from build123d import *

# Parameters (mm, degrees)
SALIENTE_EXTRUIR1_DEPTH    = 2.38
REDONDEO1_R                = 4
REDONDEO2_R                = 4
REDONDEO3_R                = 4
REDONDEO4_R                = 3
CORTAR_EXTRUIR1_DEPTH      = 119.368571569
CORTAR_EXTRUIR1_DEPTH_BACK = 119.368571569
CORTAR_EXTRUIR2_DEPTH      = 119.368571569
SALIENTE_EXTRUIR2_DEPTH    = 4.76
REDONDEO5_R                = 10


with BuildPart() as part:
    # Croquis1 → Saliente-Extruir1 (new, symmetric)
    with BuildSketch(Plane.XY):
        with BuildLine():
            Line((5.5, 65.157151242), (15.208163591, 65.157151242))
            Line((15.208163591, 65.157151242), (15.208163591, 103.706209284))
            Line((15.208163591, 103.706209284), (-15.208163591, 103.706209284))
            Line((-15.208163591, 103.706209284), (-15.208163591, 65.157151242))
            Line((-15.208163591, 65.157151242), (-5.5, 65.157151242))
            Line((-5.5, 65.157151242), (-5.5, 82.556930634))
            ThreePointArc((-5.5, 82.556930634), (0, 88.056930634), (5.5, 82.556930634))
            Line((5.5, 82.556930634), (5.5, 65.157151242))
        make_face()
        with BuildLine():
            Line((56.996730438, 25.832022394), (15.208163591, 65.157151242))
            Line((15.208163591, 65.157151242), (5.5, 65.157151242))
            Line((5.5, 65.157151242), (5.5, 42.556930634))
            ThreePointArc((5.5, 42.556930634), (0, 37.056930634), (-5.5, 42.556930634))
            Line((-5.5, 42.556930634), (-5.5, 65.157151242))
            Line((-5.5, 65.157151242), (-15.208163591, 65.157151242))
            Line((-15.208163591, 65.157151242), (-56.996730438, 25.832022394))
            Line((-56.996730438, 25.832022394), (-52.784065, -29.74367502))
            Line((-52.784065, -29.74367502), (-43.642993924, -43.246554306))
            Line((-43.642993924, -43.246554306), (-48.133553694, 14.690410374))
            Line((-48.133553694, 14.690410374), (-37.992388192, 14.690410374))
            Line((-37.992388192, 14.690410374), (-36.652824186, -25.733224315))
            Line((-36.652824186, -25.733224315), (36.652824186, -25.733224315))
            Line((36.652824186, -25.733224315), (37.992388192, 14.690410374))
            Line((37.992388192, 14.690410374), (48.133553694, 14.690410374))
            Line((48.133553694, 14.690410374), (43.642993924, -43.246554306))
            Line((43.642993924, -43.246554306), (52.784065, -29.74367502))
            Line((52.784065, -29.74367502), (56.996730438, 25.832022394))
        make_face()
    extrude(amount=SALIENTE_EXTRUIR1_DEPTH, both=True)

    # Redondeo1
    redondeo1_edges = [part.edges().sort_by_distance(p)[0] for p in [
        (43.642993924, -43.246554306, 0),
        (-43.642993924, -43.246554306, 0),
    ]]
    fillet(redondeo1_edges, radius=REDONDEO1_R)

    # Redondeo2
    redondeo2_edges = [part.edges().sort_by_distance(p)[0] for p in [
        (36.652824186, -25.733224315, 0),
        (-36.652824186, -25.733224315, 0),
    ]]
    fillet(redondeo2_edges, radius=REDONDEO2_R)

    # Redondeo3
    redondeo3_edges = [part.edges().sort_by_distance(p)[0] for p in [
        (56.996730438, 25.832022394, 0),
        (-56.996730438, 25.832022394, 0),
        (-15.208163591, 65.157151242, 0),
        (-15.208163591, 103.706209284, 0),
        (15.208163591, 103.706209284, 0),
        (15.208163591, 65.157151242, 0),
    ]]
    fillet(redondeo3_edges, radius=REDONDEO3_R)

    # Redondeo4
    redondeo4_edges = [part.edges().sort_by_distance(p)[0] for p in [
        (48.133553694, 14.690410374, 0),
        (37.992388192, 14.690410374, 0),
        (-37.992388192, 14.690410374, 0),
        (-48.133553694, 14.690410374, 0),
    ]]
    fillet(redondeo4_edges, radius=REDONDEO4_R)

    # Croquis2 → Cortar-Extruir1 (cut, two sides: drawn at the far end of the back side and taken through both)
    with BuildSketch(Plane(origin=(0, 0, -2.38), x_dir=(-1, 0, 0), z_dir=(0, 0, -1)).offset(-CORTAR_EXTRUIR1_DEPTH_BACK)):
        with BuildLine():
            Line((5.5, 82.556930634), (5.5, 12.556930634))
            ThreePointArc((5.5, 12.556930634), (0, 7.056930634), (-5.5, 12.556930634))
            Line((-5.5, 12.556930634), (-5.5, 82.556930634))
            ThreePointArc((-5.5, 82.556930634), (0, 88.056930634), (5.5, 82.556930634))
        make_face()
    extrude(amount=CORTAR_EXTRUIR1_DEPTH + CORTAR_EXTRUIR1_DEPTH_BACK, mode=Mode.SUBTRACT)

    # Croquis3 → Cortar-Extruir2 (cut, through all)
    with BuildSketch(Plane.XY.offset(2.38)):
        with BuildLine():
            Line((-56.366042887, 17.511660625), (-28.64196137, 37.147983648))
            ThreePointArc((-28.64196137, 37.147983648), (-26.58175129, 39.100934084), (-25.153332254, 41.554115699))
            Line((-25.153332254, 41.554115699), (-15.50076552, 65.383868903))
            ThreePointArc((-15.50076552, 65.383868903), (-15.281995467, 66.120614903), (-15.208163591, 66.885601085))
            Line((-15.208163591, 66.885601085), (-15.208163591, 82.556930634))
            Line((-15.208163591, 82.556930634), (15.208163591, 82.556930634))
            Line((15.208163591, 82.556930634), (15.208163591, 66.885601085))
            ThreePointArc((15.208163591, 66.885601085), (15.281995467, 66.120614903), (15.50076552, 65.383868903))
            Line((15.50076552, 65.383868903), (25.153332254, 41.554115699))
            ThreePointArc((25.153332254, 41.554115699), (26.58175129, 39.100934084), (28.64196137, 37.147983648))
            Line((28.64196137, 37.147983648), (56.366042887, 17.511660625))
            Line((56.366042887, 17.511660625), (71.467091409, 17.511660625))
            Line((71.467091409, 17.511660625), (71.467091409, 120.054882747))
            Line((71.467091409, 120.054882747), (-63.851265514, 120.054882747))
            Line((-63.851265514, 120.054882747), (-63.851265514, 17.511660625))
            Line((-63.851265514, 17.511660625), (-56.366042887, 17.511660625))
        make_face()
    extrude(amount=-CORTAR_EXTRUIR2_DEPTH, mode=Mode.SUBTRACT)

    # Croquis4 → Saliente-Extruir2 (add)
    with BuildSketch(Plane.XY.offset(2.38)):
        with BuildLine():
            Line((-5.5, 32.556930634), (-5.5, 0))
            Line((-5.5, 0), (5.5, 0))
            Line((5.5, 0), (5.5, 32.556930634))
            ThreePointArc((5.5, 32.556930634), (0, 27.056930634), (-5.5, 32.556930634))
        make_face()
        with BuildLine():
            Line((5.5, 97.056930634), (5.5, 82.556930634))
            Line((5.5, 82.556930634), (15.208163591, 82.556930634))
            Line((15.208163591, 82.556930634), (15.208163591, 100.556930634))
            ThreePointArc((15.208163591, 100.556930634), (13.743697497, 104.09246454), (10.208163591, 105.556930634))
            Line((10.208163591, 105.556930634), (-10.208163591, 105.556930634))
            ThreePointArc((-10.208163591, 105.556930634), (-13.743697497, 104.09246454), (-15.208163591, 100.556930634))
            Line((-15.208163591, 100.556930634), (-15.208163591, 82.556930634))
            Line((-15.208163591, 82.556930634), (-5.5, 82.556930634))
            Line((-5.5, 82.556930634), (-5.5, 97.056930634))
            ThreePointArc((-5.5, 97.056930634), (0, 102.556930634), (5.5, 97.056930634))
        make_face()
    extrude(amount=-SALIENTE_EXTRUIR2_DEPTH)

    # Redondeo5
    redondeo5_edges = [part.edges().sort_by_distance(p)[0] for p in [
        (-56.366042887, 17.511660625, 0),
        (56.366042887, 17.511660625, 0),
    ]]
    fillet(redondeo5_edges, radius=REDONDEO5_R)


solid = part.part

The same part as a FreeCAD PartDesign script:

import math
import FreeCAD as App
import Part
import Sketcher
from FreeCAD import Vector
Q = App.Units.Quantity


def edges_at(feature, points):
    """Names of the edges that pass closest to the given points."""
    edges = feature.Shape.Edges
    near = lambda p: min(range(len(edges)), key=lambda i: edges[i].distToShape(Part.Vertex(*p))[0])
    return sorted({f"Edge{near(p) + 1}" for p in points})

doc = App.newDocument("Part")
body = doc.addObject("PartDesign::Body", "Body")

# Sketch on XY plane
sketch1 = body.newObject("Sketcher::SketchObject", "Sketch")
sketch1.AttachmentSupport = (doc.getObject("XY_Plane"), [""])
sketch1.MapMode = "FlatFace"
sketch1.addGeometry([
    Part.LineSegment(Vector(15.208164, 65.157151, 0), Vector(15.208164, 103.706209, 0)),  # 0
    Part.LineSegment(Vector(15.208164, 103.706209, 0), Vector(-15.208164, 103.706209, 0)),  # 1
    Part.LineSegment(Vector(-15.208164, 103.706209, 0), Vector(-15.208164, 65.157151, 0)),  # 2
    Part.LineSegment(Vector(-15.208164, 65.157151, 0), Vector(-56.99673, 25.832022, 0)),  # 3
    Part.LineSegment(Vector(-56.99673, 25.832022, 0), Vector(-52.784065, -29.743675, 0)),  # 4
    Part.LineSegment(Vector(-52.784065, -29.743675, 0), Vector(-43.642994, -43.246554, 0)),  # 5
    Part.LineSegment(Vector(-43.642994, -43.246554, 0), Vector(-48.133554, 14.69041, 0)),  # 6
    Part.LineSegment(Vector(-48.133554, 14.69041, 0), Vector(-37.992388, 14.69041, 0)),  # 7
    Part.LineSegment(Vector(-37.992388, 14.69041, 0), Vector(-36.652824, -25.733224, 0)),  # 8
    Part.LineSegment(Vector(-36.652824, -25.733224, 0), Vector(36.652824, -25.733224, 0)),  # 9
    Part.LineSegment(Vector(36.652824, -25.733224, 0), Vector(37.992388, 14.69041, 0)),  # 10
    Part.LineSegment(Vector(37.992388, 14.69041, 0), Vector(48.133554, 14.69041, 0)),  # 11
    Part.LineSegment(Vector(48.133554, 14.69041, 0), Vector(43.642994, -43.246554, 0)),  # 12
    Part.LineSegment(Vector(43.642994, -43.246554, 0), Vector(52.784065, -29.743675, 0)),  # 13
    Part.LineSegment(Vector(52.784065, -29.743675, 0), Vector(56.99673, 25.832022, 0)),  # 14
    Part.LineSegment(Vector(56.99673, 25.832022, 0), Vector(15.208164, 65.157151, 0)),  # 15
    Part.ArcOfCircle(Part.Circle(Vector(0, 82.556931, 0), Vector(0, 0, 1), 5.5), math.radians(0), math.radians(180)),  # 16
    Part.LineSegment(Vector(5.5, 82.556931, 0), Vector(5.5, 42.556931, 0)),  # 17
    Part.ArcOfCircle(Part.Circle(Vector(0, 42.556931, 0), Vector(0, 0, 1), 5.5), math.radians(180), math.radians(360)),  # 18
    Part.LineSegment(Vector(-5.5, 42.556931, 0), Vector(-5.5, 82.556931, 0)),  # 19
], False)
sketch1.addConstraint([
    Sketcher.Constraint("Coincident", 0, 2, 1, 1),
    Sketcher.Constraint("Coincident", 1, 2, 2, 1),
    Sketcher.Constraint("Coincident", 2, 2, 3, 1),
    Sketcher.Constraint("Coincident", 3, 2, 4, 1),
    Sketcher.Constraint("Coincident", 4, 2, 5, 1),
    Sketcher.Constraint("Coincident", 5, 2, 6, 1),
    Sketcher.Constraint("Coincident", 6, 2, 7, 1),
    Sketcher.Constraint("Coincident", 7, 2, 8, 1),
    Sketcher.Constraint("Coincident", 8, 2, 9, 1),
    Sketcher.Constraint("Coincident", 9, 2, 10, 1),
    Sketcher.Constraint("Coincident", 10, 2, 11, 1),
    Sketcher.Constraint("Coincident", 11, 2, 12, 1),
    Sketcher.Constraint("Coincident", 12, 2, 13, 1),
    Sketcher.Constraint("Coincident", 13, 2, 14, 1),
    Sketcher.Constraint("Coincident", 14, 2, 15, 1),
    Sketcher.Constraint("Coincident", 15, 2, 0, 1),
    Sketcher.Constraint("Tangent", 16, 1, 17, 1),
    Sketcher.Constraint("Tangent", 17, 2, 18, 2),
    Sketcher.Constraint("Tangent", 18, 1, 19, 1),
    Sketcher.Constraint("Tangent", 19, 2, 16, 2),
    Sketcher.Constraint("Vertical", 0),
    Sketcher.Constraint("Horizontal", 1),
    Sketcher.Constraint("Vertical", 2),
    Sketcher.Constraint("Horizontal", 7),
    Sketcher.Constraint("Horizontal", 9),
    Sketcher.Constraint("Horizontal", 11),
    Sketcher.Constraint("Vertical", 17),
    Sketcher.Constraint("Vertical", 19),
    Sketcher.Constraint("Symmetric", 7, 2, 10, 2, -2),
    Sketcher.Constraint("Symmetric", 5, 2, 12, 2, -2),
    Sketcher.Constraint("Symmetric", 4, 2, 13, 2, -2),
    Sketcher.Constraint("Symmetric", 3, 2, 14, 2, -2),
    Sketcher.Constraint("Symmetric", 2, 2, 15, 2, -2),
    Sketcher.Constraint("PointOnObject", 16, 3, -2),
    Sketcher.Constraint("Equal", 7, 11),
    Sketcher.Constraint("Equal", 8, 10),
    Sketcher.Constraint("Radius", 16, Q("5.5 mm")),
    Sketcher.Constraint("DistanceY", 17, 2, 17, 1, Q("40 mm")),
    Sketcher.Constraint("DistanceX", 9, 1, 9, 2, Q("73.305648 mm")),
    Sketcher.Constraint("DistanceY", 0, 1, 0, 2, Q("38.549058 mm")),
    Sketcher.Constraint("DistanceX", 4, 2, 2, 2, Q("37.575901 mm")),
    Sketcher.Constraint("Distance", 3, Q("57.382489 mm")),
    Sketcher.Constraint("Distance", 4, Q("55.73513 mm")),
    Sketcher.Constraint("Distance", 5, Q("16.30604 mm")),
    Sketcher.Constraint("Distance", 6, Q("58.110731 mm")),
    Sketcher.Constraint("DistanceX", 1, 2, 1, 1, Q("30.416327 mm")),
    Sketcher.Constraint("DistanceX", 7, 1, 7, 2, Q("10.141166 mm")),
    Sketcher.Constraint("DistanceY", -1, 1, 16, 3, Q("82.556931 mm")),
    Sketcher.Constraint("DistanceY", -1, 1, 0, 2, Q("103.706209 mm")),
    Sketcher.Constraint("DistanceX", 3, 2, -1, 1, Q("56.99673 mm")),
    Sketcher.Constraint("DistanceY", -1, 1, 6, 2, Q("14.69041 mm")),
    Sketcher.Constraint("DistanceX", 7, 2, -1, 1, Q("37.992388 mm")),
    Sketcher.Constraint("DistanceY", 4, 2, 8, 2, Q("4.010451 mm")),
])
pad1 = body.newObject("PartDesign::Pad", "Pad")
pad1.Profile = sketch1
pad1.Length = 4.76
pad1.Midplane = True
doc.recompute()

fillet = body.newObject("PartDesign::Fillet", "Fillet")
fillet.Base = (pad1, edges_at(pad1, [(43.643, -43.247, 0), (-43.643, -43.247, 0)]))
fillet.Radius = 4
doc.recompute()

fillet2 = body.newObject("PartDesign::Fillet", "Fillet001")
fillet2.Base = (fillet, edges_at(fillet, [(36.653, -25.733, 0), (-36.653, -25.733, 0)]))
fillet2.Radius = 4
doc.recompute()

fillet3 = body.newObject("PartDesign::Fillet", "Fillet002")
fillet3.Base = (fillet2, edges_at(fillet2, [
    (56.997, 25.832, 0),
    (-56.997, 25.832, 0),
    (-15.208, 65.157, 0),
    (-15.208, 103.706, 0),
    (15.208, 103.706, 0),
    (15.208, 65.157, 0),
]))
fillet3.Radius = 4
doc.recompute()

fillet4 = body.newObject("PartDesign::Fillet", "Fillet003")
fillet4.Base = (fillet3, edges_at(fillet3, [
    (48.134, 14.69, 0),
    (37.992, 14.69, 0),
    (-37.992, 14.69, 0),
    (-48.134, 14.69, 0),
]))
fillet4.Radius = 3

# Sketch on XY plane
sketch2 = body.newObject("Sketcher::SketchObject", "Sketch001")
sketch2.AttachmentSupport = (doc.getObject("XY_Plane"), [""])
sketch2.MapMode = "FlatFace"
sketch2.AttachmentOffset = App.Placement(Vector(0, 0, -2.38), App.Rotation())
sketch2.addGeometry([
    Part.LineSegment(Vector(-5.5, 12.556931, 0), Vector(-5.5, 82.556931, 0)),
    Part.ArcOfCircle(Part.Circle(Vector(0, 82.556931, 0), Vector(0, 0, 1), 5.5), math.radians(0), math.radians(180)),
    Part.LineSegment(Vector(5.5, 82.556931, 0), Vector(5.5, 12.556931, 0)),
    Part.ArcOfCircle(Part.Circle(Vector(0, 12.556931, 0), Vector(0, 0, 1), 5.5), math.radians(180), math.radians(360)),
], False)
sketch2.addConstraint([
    Sketcher.Constraint("Tangent", 0, 2, 1, 2),
    Sketcher.Constraint("Tangent", 1, 1, 2, 1),
    Sketcher.Constraint("Tangent", 2, 2, 3, 2),
    Sketcher.Constraint("Tangent", 3, 1, 0, 1),
    Sketcher.Constraint("Vertical", 0),
    Sketcher.Constraint("Vertical", 2),
    Sketcher.Constraint("PointOnObject", 1, 3, -2),
    Sketcher.Constraint("Radius", 1, Q("5.5 mm")),
    Sketcher.Constraint("DistanceY", 0, 1, 0, 2, Q("70 mm")),
    Sketcher.Constraint("DistanceY", -1, 1, 1, 3, Q("82.556931 mm")),
])
pocket1 = body.newObject("PartDesign::Pocket", "Pocket")
pocket1.Profile = sketch2
pocket1.Type = "ThroughAll"
pocket1.Midplane = True

# Sketch on XY plane
sketch3 = body.newObject("Sketcher::SketchObject", "Sketch002")
sketch3.AttachmentSupport = (doc.getObject("XY_Plane"), [""])
sketch3.MapMode = "FlatFace"
sketch3.AttachmentOffset = App.Placement(Vector(0, 0, 2.38), App.Rotation())
sketch3.addGeometry([
    Part.LineSegment(Vector(-56.366043, 17.511661, 0), Vector(-28.641961, 37.147984, 0)),  # 0
    Part.ArcOfCircle(Part.Circle(Vector(-34.421827, 45.308446, 0), Vector(0, 0, 1), 10), math.radians(-54.690945), math.radians(-22.05108)),  # 1
    Part.LineSegment(Vector(-25.153332, 41.554116, 0), Vector(-15.500766, 65.383869, 0)),  # 2
    Part.ArcOfCircle(Part.Circle(Vector(-19.208164, 66.885601, 0), Vector(0, 0, 1), 4), math.radians(-22.05108), math.radians(0)),  # 3
    Part.LineSegment(Vector(-15.208164, 66.885601, 0), Vector(-15.208164, 82.556931, 0)),  # 4
    Part.LineSegment(Vector(-15.208164, 82.556931, 0), Vector(15.208164, 82.556931, 0)),  # 5
    Part.LineSegment(Vector(15.208164, 82.556931, 0), Vector(15.208164, 66.885601, 0)),  # 6
    Part.ArcOfCircle(Part.Circle(Vector(19.208164, 66.885601, 0), Vector(0, 0, 1), 4), math.radians(-180), math.radians(-157.94892)),  # 7
    Part.LineSegment(Vector(15.500766, 65.383869, 0), Vector(25.153332, 41.554116, 0)),  # 8
    Part.ArcOfCircle(Part.Circle(Vector(34.421827, 45.308446, 0), Vector(0, 0, 1), 10), math.radians(-157.94892), math.radians(-125.309055)),  # 9
    Part.LineSegment(Vector(28.641961, 37.147984, 0), Vector(56.366043, 17.511661, 0)),  # 10
    Part.LineSegment(Vector(56.366043, 17.511661, 0), Vector(71.467091, 17.511661, 0)),  # 11
    Part.LineSegment(Vector(71.467091, 17.511661, 0), Vector(71.467091, 120.054883, 0)),  # 12
    Part.LineSegment(Vector(71.467091, 120.054883, 0), Vector(-63.851266, 120.054883, 0)),  # 13
    Part.LineSegment(Vector(-63.851266, 120.054883, 0), Vector(-63.851266, 17.511661, 0)),  # 14
    Part.LineSegment(Vector(-63.851266, 17.511661, 0), Vector(-56.366043, 17.511661, 0)),  # 15
], False)
sketch3.addConstraint([
    Sketcher.Constraint("Tangent", 0, 2, 1, 1),
    Sketcher.Constraint("Tangent", 1, 2, 2, 1),
    Sketcher.Constraint("Tangent", 2, 2, 3, 1),
    Sketcher.Constraint("Tangent", 3, 2, 4, 1),
    Sketcher.Constraint("Coincident", 4, 2, 5, 1),
    Sketcher.Constraint("Coincident", 5, 2, 6, 1),
    Sketcher.Constraint("Tangent", 6, 2, 7, 1),
    Sketcher.Constraint("Tangent", 7, 2, 8, 1),
    Sketcher.Constraint("Tangent", 8, 2, 9, 1),
    Sketcher.Constraint("Tangent", 9, 2, 10, 1),
    Sketcher.Constraint("Coincident", 10, 2, 11, 1),
    Sketcher.Constraint("Coincident", 11, 2, 12, 1),
    Sketcher.Constraint("Coincident", 12, 2, 13, 1),
    Sketcher.Constraint("Coincident", 13, 2, 14, 1),
    Sketcher.Constraint("Coincident", 14, 2, 15, 1),
    Sketcher.Constraint("Coincident", 15, 2, 0, 1),
    Sketcher.Constraint("Vertical", 4),
    Sketcher.Constraint("Horizontal", 5),
    Sketcher.Constraint("Vertical", 6),
    Sketcher.Constraint("Horizontal", 11),
    Sketcher.Constraint("Vertical", 12),
    Sketcher.Constraint("Horizontal", 13),
    Sketcher.Constraint("Vertical", 14),
    Sketcher.Constraint("Horizontal", 15),
    Sketcher.Constraint("Equal", 3, 7),
    Sketcher.Constraint("Equal", 1, 9),
    Sketcher.Constraint("Symmetric", 3, 3, 7, 3, -2),
    Sketcher.Constraint("Symmetric", 1, 3, 9, 3, -2),
    Sketcher.Constraint("Symmetric", 10, 2, 15, 2, -2),
    Sketcher.Constraint("Radius", 1, Q("10 mm")),
    Sketcher.Constraint("Radius", 3, Q("4 mm")),
    Sketcher.Constraint("DistanceX", 11, 1, 11, 2, Q("15.101049 mm")),
    Sketcher.Constraint("DistanceY", 4, 1, 4, 2, Q("15.67133 mm")),
    Sketcher.Constraint("DistanceY", -1, 1, 3, 3, Q("66.885601 mm")),
    Sketcher.Constraint("DistanceX", 3, 3, 2, 2, Q("3.707398 mm")),
    Sketcher.Constraint("DistanceX", 13, 2, 4, 2, Q("48.643102 mm")),
    Sketcher.Constraint("DistanceX", 5, 1, 5, 2, Q("30.416327 mm")),
    Sketcher.Constraint("DistanceX", 13, 2, 13, 1, Q("135.318357 mm")),
    Sketcher.Constraint("DistanceY", 12, 1, 12, 2, Q("102.543222 mm")),
    Sketcher.Constraint("DistanceX", 0, 2, -1, 1, Q("28.641961 mm")),
    Sketcher.Constraint("DistanceY", -1, 1, 10, 2, Q("17.511661 mm")),
])
pocket2 = body.newObject("PartDesign::Pocket", "Pocket001")
pocket2.Profile = sketch3
pocket2.Type = "ThroughAll"

# Sketch on XY plane
sketch4 = body.newObject("Sketcher::SketchObject", "Sketch003")
sketch4.AttachmentSupport = (doc.getObject("XY_Plane"), [""])
sketch4.MapMode = "FlatFace"
sketch4.AttachmentOffset = App.Placement(Vector(0, 0, 2.38), App.Rotation())
sketch4.addGeometry([
    Part.LineSegment(Vector(-5.5, 32.556931, 0), Vector(-5.5, 0, 0)),  # 0
    Part.LineSegment(Vector(-5.5, 0, 0), Vector(5.5, 0, 0)),  # 1
    Part.LineSegment(Vector(5.5, 0, 0), Vector(5.5, 32.556931, 0)),  # 2
    Part.ArcOfCircle(Part.Circle(Vector(0, 32.556931, 0), Vector(0, 0, 1), 5.5), math.radians(180), math.radians(360)),  # 3
    Part.LineSegment(Vector(5.5, 97.056931, 0), Vector(5.5, 82.556931, 0)),  # 4
    Part.LineSegment(Vector(5.5, 82.556931, 0), Vector(15.208164, 82.556931, 0)),  # 5
    Part.LineSegment(Vector(15.208164, 82.556931, 0), Vector(15.208164, 100.556931, 0)),  # 6
    Part.ArcOfCircle(Part.Circle(Vector(10.208164, 100.556931, 0), Vector(0, 0, 1), 5), math.radians(0), math.radians(90)),  # 7
    Part.LineSegment(Vector(10.208164, 105.556931, 0), Vector(-10.208164, 105.556931, 0)),  # 8
    Part.ArcOfCircle(Part.Circle(Vector(-10.208164, 100.556931, 0), Vector(0, 0, 1), 5), math.radians(90), math.radians(180)),  # 9
    Part.LineSegment(Vector(-15.208164, 100.556931, 0), Vector(-15.208164, 82.556931, 0)),  # 10
    Part.LineSegment(Vector(-15.208164, 82.556931, 0), Vector(-5.5, 82.556931, 0)),  # 11
    Part.LineSegment(Vector(-5.5, 82.556931, 0), Vector(-5.5, 97.056931, 0)),  # 12
    Part.ArcOfCircle(Part.Circle(Vector(0, 97.056931, 0), Vector(0, 0, 1), 5.5), math.radians(0), math.radians(180)),  # 13
], False)
sketch4.addConstraint([
    Sketcher.Constraint("Coincident", 0, 2, 1, 1),
    Sketcher.Constraint("Coincident", 1, 2, 2, 1),
    Sketcher.Constraint("Tangent", 2, 2, 3, 2),
    Sketcher.Constraint("Tangent", 3, 1, 0, 1),
    Sketcher.Constraint("Coincident", 4, 2, 5, 1),
    Sketcher.Constraint("Coincident", 5, 2, 6, 1),
    Sketcher.Constraint("Tangent", 6, 2, 7, 1),
    Sketcher.Constraint("Tangent", 7, 2, 8, 1),
    Sketcher.Constraint("Tangent", 8, 2, 9, 1),
    Sketcher.Constraint("Tangent", 9, 2, 10, 1),
    Sketcher.Constraint("Coincident", 10, 2, 11, 1),
    Sketcher.Constraint("Coincident", 11, 2, 12, 1),
    Sketcher.Constraint("Tangent", 12, 2, 13, 2),
    Sketcher.Constraint("Tangent", 13, 1, 4, 1),
    Sketcher.Constraint("Vertical", 0),
    Sketcher.Constraint("Horizontal", 1),
    Sketcher.Constraint("Vertical", 2),
    Sketcher.Constraint("Vertical", 4),
    Sketcher.Constraint("Horizontal", 5),
    Sketcher.Constraint("Vertical", 6),
    Sketcher.Constraint("Horizontal", 8),
    Sketcher.Constraint("Vertical", 10),
    Sketcher.Constraint("Horizontal", 11),
    Sketcher.Constraint("Vertical", 12),
    Sketcher.Constraint("Equal", 7, 9),
    Sketcher.Constraint("Equal", 3, 13),
    Sketcher.Constraint("Symmetric", 0, 2, 1, 2, -1, 1),
    Sketcher.Constraint("Symmetric", 5, 2, 10, 2, -2),
    Sketcher.Constraint("PointOnObject", 13, 3, -2),
    Sketcher.Constraint("Radius", 7, Q("5 mm")),
    Sketcher.Constraint("Radius", 3, Q("5.5 mm")),
    Sketcher.Constraint("DistanceY", 6, 1, 6, 2, Q("18 mm")),
    Sketcher.Constraint("DistanceY", 4, 2, 4, 1, Q("14.5 mm")),
    Sketcher.Constraint("DistanceY", 3, 3, 7, 3, Q("68 mm")),
    Sketcher.Constraint("DistanceY", 0, 2, 0, 1, Q("32.556931 mm")),
    Sketcher.Constraint("DistanceX", 5, 1, 5, 2, Q("9.708164 mm")),
])
pad2 = body.newObject("PartDesign::Pad", "Pad001")
pad2.Profile = sketch4
pad2.Length = 4.76
pad2.Reversed = True
doc.recompute()

fillet5 = body.newObject("PartDesign::Fillet", "Fillet004")
fillet5.Base = (pad2, edges_at(pad2, [(-56.366, 17.512, 0), (56.366, 17.512, 0)]))
fillet5.Radius = 10

doc.recompute()
